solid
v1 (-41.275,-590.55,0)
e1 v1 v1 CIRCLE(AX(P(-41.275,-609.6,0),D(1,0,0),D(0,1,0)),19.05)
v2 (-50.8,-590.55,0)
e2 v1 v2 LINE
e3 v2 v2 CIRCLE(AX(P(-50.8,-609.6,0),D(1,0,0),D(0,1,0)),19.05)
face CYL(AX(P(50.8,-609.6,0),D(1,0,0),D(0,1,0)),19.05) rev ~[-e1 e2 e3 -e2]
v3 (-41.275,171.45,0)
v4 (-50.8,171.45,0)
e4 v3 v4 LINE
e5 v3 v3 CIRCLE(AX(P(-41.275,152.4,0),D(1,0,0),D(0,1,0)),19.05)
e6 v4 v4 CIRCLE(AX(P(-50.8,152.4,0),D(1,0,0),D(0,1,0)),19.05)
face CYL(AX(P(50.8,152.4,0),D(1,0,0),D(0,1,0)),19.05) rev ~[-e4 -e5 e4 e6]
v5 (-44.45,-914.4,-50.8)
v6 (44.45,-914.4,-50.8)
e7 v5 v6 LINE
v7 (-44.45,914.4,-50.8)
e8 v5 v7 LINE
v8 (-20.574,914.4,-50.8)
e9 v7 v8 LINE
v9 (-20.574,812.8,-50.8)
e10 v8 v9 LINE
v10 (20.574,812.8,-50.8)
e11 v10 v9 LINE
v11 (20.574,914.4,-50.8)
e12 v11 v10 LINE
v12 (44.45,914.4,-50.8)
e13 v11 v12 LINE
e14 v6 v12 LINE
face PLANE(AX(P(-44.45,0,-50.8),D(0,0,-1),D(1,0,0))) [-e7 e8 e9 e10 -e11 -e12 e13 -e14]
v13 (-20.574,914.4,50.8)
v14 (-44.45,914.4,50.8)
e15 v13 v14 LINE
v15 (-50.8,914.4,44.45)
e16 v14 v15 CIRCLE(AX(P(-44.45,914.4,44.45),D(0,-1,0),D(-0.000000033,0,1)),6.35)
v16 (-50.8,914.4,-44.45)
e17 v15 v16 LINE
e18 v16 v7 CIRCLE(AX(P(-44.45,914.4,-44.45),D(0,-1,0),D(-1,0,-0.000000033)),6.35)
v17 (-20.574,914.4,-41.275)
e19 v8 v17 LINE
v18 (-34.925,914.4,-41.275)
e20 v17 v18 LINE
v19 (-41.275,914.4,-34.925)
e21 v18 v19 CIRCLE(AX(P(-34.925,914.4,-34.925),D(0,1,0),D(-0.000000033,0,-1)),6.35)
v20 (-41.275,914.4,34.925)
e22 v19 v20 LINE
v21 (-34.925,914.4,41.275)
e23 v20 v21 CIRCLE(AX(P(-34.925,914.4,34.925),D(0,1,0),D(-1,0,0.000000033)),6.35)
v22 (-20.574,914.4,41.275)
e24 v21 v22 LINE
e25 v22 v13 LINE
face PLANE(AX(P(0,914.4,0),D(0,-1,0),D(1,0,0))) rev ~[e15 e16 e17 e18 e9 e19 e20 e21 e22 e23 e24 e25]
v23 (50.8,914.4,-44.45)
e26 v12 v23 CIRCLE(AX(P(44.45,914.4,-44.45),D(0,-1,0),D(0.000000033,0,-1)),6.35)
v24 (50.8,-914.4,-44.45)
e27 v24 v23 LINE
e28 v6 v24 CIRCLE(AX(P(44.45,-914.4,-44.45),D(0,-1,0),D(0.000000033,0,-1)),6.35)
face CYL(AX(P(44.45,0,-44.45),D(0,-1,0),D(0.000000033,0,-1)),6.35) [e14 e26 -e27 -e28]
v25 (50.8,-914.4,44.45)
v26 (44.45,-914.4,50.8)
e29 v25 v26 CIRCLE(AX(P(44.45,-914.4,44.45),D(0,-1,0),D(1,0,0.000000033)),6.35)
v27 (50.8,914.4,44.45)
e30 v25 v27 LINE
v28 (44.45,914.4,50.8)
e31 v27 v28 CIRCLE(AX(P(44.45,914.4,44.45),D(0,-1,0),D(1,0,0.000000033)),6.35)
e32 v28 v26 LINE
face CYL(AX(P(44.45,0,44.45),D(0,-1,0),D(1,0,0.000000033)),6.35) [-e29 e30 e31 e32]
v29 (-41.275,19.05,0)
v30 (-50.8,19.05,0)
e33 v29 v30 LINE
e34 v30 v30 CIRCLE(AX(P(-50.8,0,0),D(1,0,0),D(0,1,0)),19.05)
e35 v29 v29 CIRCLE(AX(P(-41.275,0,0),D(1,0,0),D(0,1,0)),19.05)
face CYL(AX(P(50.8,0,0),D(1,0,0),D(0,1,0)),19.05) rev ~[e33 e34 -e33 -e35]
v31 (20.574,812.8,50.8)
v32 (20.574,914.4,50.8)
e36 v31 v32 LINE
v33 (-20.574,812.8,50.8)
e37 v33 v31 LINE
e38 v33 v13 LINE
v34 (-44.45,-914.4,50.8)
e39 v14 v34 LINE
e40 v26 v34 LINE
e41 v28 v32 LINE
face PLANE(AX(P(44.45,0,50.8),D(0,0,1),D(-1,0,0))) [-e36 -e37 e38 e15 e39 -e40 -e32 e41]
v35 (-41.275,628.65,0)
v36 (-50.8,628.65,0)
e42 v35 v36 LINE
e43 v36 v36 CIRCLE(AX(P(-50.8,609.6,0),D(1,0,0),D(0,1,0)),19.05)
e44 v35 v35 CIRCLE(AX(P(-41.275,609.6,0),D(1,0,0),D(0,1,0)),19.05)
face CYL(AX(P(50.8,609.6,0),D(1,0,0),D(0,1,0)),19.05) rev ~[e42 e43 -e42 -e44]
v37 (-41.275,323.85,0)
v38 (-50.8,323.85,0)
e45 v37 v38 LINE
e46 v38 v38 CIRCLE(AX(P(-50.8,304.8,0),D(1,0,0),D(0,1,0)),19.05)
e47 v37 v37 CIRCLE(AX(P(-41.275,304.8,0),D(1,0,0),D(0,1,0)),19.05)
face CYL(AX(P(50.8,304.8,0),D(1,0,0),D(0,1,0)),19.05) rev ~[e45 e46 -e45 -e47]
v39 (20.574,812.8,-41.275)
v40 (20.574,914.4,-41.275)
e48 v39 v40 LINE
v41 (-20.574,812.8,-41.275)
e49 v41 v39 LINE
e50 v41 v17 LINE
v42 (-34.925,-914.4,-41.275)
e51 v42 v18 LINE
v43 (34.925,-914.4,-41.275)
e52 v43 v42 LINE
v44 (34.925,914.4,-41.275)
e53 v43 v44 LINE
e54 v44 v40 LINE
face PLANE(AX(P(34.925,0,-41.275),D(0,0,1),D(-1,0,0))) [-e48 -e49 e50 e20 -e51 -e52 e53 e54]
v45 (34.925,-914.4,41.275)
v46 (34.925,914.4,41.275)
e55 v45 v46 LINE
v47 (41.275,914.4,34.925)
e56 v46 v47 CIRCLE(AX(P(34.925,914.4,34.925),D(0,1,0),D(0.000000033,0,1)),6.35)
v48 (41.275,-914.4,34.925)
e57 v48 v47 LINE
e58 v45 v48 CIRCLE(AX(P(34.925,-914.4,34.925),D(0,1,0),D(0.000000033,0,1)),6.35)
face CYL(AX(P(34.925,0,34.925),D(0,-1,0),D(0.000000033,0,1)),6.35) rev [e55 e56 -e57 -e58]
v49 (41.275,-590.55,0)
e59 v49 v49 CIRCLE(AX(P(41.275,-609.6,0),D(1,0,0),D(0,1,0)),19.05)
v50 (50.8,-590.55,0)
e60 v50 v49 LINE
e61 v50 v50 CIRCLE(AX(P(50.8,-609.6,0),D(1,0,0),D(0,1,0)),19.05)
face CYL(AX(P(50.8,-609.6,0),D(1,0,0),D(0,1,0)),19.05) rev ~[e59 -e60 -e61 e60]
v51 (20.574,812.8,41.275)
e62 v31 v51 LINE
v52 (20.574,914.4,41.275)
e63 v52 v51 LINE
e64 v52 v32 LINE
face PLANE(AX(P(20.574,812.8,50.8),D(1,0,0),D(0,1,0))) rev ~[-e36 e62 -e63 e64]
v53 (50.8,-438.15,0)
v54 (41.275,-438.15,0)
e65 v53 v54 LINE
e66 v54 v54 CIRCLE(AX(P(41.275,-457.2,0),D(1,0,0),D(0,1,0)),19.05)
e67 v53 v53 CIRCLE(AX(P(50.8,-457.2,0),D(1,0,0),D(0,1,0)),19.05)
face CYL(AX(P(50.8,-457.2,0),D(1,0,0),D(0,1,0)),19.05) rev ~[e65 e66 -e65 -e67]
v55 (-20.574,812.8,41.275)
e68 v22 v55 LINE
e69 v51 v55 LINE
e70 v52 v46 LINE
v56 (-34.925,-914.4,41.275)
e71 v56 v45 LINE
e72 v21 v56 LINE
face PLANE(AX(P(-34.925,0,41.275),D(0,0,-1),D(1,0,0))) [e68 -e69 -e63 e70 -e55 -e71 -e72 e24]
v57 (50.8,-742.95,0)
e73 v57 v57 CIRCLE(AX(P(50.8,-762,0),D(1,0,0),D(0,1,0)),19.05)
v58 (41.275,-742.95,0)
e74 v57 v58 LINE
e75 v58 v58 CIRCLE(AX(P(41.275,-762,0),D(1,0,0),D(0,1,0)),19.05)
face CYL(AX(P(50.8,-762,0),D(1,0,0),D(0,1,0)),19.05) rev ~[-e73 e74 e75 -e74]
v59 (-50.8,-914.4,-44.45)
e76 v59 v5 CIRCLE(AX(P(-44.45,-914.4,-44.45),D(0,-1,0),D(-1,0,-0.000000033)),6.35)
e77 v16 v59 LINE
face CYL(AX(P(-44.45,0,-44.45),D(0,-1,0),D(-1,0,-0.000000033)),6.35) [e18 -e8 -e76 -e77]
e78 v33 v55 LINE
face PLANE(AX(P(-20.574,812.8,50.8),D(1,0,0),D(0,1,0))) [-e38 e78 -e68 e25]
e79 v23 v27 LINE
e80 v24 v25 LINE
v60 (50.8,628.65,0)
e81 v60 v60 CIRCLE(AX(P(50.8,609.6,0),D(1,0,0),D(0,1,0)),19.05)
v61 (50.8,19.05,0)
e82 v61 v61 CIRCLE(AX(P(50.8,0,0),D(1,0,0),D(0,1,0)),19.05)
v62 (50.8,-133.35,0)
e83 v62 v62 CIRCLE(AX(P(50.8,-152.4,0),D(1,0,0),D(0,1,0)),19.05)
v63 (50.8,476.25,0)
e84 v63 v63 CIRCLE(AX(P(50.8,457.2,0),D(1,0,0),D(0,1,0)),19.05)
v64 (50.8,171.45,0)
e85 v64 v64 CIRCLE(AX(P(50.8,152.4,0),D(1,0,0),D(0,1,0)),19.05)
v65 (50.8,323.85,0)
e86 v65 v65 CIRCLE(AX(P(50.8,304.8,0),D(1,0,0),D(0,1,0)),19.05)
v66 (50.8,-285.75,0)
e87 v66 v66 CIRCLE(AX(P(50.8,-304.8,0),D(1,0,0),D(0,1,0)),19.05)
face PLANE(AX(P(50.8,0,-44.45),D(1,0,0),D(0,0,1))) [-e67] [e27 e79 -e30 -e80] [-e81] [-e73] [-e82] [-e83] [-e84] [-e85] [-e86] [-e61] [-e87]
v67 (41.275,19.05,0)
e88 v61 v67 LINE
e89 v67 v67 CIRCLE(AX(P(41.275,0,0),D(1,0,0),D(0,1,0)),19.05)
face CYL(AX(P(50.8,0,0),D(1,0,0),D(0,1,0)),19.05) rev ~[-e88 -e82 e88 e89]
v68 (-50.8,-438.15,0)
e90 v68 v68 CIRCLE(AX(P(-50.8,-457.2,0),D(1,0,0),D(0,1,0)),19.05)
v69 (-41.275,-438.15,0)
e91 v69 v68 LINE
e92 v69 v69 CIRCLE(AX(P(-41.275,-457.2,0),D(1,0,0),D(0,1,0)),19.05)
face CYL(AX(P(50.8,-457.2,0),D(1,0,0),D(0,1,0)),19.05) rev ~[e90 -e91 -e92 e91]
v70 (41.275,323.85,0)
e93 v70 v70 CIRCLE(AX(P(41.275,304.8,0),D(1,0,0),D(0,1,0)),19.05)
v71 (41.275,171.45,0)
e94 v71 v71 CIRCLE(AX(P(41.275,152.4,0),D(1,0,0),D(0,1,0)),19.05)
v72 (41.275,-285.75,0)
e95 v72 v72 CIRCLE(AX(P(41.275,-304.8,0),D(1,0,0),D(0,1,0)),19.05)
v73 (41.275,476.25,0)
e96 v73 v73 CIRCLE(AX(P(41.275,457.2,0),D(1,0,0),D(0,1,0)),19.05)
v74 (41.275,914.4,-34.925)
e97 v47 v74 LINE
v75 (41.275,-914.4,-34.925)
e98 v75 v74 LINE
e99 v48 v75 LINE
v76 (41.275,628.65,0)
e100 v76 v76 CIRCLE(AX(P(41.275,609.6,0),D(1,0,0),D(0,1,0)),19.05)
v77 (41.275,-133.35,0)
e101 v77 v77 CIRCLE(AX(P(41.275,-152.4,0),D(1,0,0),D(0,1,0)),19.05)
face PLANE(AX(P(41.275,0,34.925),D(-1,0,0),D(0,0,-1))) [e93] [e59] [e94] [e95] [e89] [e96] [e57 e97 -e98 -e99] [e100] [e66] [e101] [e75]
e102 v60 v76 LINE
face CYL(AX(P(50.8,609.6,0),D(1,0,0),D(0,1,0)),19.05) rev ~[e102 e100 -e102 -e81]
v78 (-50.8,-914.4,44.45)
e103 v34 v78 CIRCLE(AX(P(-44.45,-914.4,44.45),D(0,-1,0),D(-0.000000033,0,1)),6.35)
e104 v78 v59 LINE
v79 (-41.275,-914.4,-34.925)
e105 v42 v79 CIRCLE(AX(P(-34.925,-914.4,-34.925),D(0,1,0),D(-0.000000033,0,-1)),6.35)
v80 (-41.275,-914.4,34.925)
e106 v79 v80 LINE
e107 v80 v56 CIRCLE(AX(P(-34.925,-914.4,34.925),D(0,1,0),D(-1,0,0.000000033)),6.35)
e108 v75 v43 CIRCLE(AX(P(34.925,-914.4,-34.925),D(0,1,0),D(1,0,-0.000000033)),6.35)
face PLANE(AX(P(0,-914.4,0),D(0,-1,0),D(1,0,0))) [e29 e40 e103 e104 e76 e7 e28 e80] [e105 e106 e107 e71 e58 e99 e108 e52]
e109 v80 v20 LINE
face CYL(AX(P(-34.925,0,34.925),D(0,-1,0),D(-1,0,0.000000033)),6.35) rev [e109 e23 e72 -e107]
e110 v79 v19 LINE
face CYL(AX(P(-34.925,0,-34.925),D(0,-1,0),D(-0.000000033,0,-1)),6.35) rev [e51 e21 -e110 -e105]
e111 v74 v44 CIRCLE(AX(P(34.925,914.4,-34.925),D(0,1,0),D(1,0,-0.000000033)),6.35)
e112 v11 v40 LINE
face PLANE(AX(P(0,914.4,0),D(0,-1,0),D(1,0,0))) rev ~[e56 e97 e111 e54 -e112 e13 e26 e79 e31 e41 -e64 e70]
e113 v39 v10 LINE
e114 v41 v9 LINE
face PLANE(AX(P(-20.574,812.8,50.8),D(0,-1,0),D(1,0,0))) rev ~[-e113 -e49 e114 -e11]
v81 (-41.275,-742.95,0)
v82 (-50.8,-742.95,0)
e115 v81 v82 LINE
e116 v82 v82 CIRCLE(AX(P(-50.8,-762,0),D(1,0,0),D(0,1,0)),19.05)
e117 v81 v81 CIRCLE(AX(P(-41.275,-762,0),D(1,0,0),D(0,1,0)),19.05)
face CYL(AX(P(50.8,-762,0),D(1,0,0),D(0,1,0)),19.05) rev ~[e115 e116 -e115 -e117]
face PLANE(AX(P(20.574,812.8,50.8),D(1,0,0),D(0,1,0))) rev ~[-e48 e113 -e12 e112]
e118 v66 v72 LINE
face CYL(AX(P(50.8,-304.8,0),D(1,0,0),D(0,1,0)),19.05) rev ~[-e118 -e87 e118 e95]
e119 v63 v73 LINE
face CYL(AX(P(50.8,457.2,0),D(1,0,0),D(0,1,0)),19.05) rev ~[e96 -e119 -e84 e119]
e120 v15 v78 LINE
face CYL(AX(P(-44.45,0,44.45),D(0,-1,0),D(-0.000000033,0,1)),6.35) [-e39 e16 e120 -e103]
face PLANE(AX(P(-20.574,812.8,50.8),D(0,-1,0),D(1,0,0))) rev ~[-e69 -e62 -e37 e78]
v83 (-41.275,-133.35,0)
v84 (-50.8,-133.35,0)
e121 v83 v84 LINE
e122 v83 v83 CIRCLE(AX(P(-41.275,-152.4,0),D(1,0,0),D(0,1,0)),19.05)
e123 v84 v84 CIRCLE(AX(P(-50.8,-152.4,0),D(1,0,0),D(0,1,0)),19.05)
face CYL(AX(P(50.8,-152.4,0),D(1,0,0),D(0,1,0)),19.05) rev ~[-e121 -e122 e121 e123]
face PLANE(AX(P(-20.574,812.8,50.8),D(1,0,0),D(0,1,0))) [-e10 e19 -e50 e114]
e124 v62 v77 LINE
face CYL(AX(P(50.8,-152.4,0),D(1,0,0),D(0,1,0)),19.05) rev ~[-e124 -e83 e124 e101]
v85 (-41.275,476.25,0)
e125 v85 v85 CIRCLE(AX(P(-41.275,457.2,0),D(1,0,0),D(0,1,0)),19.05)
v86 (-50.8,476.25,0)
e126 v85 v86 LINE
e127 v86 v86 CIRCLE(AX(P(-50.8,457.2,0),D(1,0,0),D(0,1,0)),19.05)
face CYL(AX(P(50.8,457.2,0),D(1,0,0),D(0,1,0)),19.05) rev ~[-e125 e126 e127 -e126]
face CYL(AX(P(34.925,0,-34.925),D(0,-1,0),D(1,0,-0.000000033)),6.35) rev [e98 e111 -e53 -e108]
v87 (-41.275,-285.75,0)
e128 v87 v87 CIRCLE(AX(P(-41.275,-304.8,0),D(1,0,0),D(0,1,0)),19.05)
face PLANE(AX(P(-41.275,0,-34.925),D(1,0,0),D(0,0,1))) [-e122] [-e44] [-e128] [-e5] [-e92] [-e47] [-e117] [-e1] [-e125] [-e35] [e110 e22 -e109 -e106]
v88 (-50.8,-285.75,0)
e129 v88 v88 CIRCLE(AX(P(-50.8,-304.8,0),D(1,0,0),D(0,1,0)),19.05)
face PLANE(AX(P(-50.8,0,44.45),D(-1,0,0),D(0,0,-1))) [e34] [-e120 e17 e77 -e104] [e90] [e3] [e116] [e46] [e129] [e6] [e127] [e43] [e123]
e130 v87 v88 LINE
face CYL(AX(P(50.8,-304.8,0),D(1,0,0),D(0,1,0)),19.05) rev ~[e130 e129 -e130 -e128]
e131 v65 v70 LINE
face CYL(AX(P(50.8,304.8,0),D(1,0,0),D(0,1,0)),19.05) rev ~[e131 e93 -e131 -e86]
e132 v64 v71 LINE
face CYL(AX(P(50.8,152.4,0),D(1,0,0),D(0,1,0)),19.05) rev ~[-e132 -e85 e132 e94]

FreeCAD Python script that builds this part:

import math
import FreeCAD as App
import Part
import Sketcher
from FreeCAD import Vector
Q = App.Units.Quantity

doc = App.newDocument("Part")
body = doc.addObject("PartDesign::Body", "Body")

sketch1 = doc.addObject("Sketcher::SketchObject", "Sketch")
body.addObject(sketch1)
sketch1.AttachmentSupport = (doc.XZ_Plane, [""])
sketch1.MapMode = "FlatFace"
sketch1.addGeometry([
    Part.ArcOfCircle(Part.Circle(Vector(44.45, 44.45, 0), Vector(0, 0, 1), 6.35), math.radians(0.000002), math.radians(89.999998)),
    Part.LineSegment(Vector(44.45, 50.8, 0), Vector(-44.45, 50.8, 0)),
    Part.ArcOfCircle(Part.Circle(Vector(-44.45, 44.45, 0), Vector(0, 0, 1), 6.35), math.radians(90.000002), math.radians(179.999998)),
    Part.LineSegment(Vector(-50.8, 44.45, 0), Vector(-50.8, -44.45, 0)),
    Part.ArcOfCircle(Part.Circle(Vector(-44.45, -44.45, 0), Vector(0, 0, 1), 6.35), math.radians(-179.999998), math.radians(-90.000002)),
    Part.LineSegment(Vector(-44.45, -50.8, 0), Vector(44.45, -50.8, 0)),
    Part.ArcOfCircle(Part.Circle(Vector(44.45, -44.45, 0), Vector(0, 0, 1), 6.35), math.radians(-89.999998), math.radians(-0.000002)),
    Part.LineSegment(Vector(50.8, -44.45, 0), Vector(50.8, 44.45, 0)),
    Part.ArcOfCircle(Part.Circle(Vector(-34.925, 34.925, 0), Vector(0, 0, 1), 6.35), math.radians(90.000002), math.radians(179.999998)),
    Part.LineSegment(Vector(-34.925, 41.275, 0), Vector(34.925, 41.275, 0)),
    Part.ArcOfCircle(Part.Circle(Vector(34.925, 34.925, 0), Vector(0, 0, 1), 6.35), math.radians(0.000002), math.radians(89.999998)),
    Part.LineSegment(Vector(41.275, 34.925, 0), Vector(41.275, -34.925, 0)),
    Part.ArcOfCircle(Part.Circle(Vector(34.925, -34.925, 0), Vector(0, 0, 1), 6.35), math.radians(-89.999998), math.radians(-0.000002)),
    Part.LineSegment(Vector(34.925, -41.275, 0), Vector(-34.925, -41.275, 0)),
    Part.ArcOfCircle(Part.Circle(Vector(-34.925, -34.925, 0), Vector(0, 0, 1), 6.35), math.radians(-179.999998), math.radians(-90.000002)),
    Part.LineSegment(Vector(-41.275, -34.925, 0), Vector(-41.275, 34.925, 0)),
], False)
sketch1.addConstraint([
    Sketcher.Constraint("Tangent", 0, 2, 1, 1),
    Sketcher.Constraint("Tangent", 1, 2, 2, 1),
    Sketcher.Constraint("Tangent", 2, 2, 3, 1),
    Sketcher.Constraint("Tangent", 3, 2, 4, 1),
    Sketcher.Constraint("Tangent", 4, 2, 5, 1),
    Sketcher.Constraint("Tangent", 5, 2, 6, 1),
    Sketcher.Constraint("Tangent", 6, 2, 7, 1),
    Sketcher.Constraint("Tangent", 7, 2, 0, 1),
    Sketcher.Constraint("Tangent", 8, 1, 9, 1),
    Sketcher.Constraint("Tangent", 9, 2, 10, 2),
    Sketcher.Constraint("Tangent", 10, 1, 11, 1),
    Sketcher.Constraint("Tangent", 11, 2, 12, 2),
    Sketcher.Constraint("Tangent", 12, 1, 13, 1),
    Sketcher.Constraint("Tangent", 13, 2, 14, 2),
    Sketcher.Constraint("Tangent", 14, 1, 15, 1),
    Sketcher.Constraint("Tangent", 15, 2, 8, 2),
    Sketcher.Constraint("Horizontal", 1),
    Sketcher.Constraint("Vertical", 3),
    Sketcher.Constraint("Horizontal", 5),
    Sketcher.Constraint("Vertical", 7),
    Sketcher.Constraint("Horizontal", 9),
    Sketcher.Constraint("Vertical", 11),
    Sketcher.Constraint("Horizontal", 13),
    Sketcher.Constraint("Vertical", 15),
    Sketcher.Constraint("Equal", 0, 2),
    Sketcher.Constraint("Equal", 2, 4),
    Sketcher.Constraint("Equal", 4, 6),
    Sketcher.Constraint("Equal", 6, 8),
    Sketcher.Constraint("Equal", 8, 10),
    Sketcher.Constraint("Equal", 10, 12),
    Sketcher.Constraint("Equal", 12, 14),
    Sketcher.Constraint("Symmetric", 0, 3, 4, 3, -1, 1),
    Sketcher.Constraint("Symmetric", 8, 3, 12, 3, -1, 1),
    Sketcher.Constraint("Equal", 5, 3),
    Sketcher.Constraint("Equal", 13, 11),
    Sketcher.Constraint("Radius", 0, Q("0.25 in")),
    Sketcher.Constraint("DistanceX", 1, 2, 1, 1, Q("3.5 in")),
    Sketcher.Constraint("DistanceX", 9, 1, 9, 2, Q("2.75 in")),
])
pad1 = doc.addObject("PartDesign::Pad", "Pad")
body.addObject(pad1)
pad1.Profile = sketch1
pad1.Length = Q("72 in")
pad1.Midplane = True

sketch2 = doc.addObject("Sketcher::SketchObject", "Sketch001")
body.addObject(sketch2)
sketch2.AttachmentSupport = (doc.YZ_Plane, [""])
sketch2.MapMode = "FlatFace"
sketch2.AttachmentOffset = App.Placement(Vector(0, 0, 2 * 25.4), App.Rotation())
sketch2.addGeometry([
    Part.Circle(Vector(304.8, 0, 0), Vector(0, 0, 1), 19.05),
    Part.Circle(Vector(-762, 0, 0), Vector(0, 0, 1), 19.05),
    Part.Circle(Vector(-609.6, 0, 0), Vector(0, 0, 1), 19.05),
    Part.Circle(Vector(-457.2, 0, 0), Vector(0, 0, 1), 19.05),
    Part.Circle(Vector(-304.8, 0, 0), Vector(0, 0, 1), 19.05),
    Part.Circle(Vector(-152.4, 0, 0), Vector(0, 0, 1), 19.05),
    Part.Circle(Vector(0, 0, 0), Vector(0, 0, 1), 19.05),
    Part.Circle(Vector(152.4, 0, 0), Vector(0, 0, 1), 19.05),
    Part.Circle(Vector(457.2, 0, 0), Vector(0, 0, 1), 19.05),
    Part.Circle(Vector(609.6, 0, 0), Vector(0, 0, 1), 19.05),
], False)
sketch2.addConstraint([
    Sketcher.Constraint("Coincident", 6, 3, -1, 1),
    Sketcher.Constraint("Equal", 0, 1),
    Sketcher.Constraint("Equal", 1, 2),
    Sketcher.Constraint("Equal", 2, 3),
    Sketcher.Constraint("Equal", 3, 4),
    Sketcher.Constraint("Equal", 4, 5),
    Sketcher.Constraint("Equal", 5, 6),
    Sketcher.Constraint("Equal", 6, 7),
    Sketcher.Constraint("Equal", 7, 8),
    Sketcher.Constraint("Equal", 8, 9),
    Sketcher.Constraint("Symmetric", 0, 3, 4, 3, -1, 1),
    Sketcher.Constraint("Symmetric", 5, 3, 7, 3, -1, 1),
    Sketcher.Constraint("Symmetric", 3, 3, 8, 3, -1, 1),
    Sketcher.Constraint("Symmetric", 2, 3, 9, 3, -1, 1),
    Sketcher.Constraint("PointOnObject", 0, 3, -1),
    Sketcher.Constraint("PointOnObject", 1, 3, -1),
    Sketcher.Constraint("PointOnObject", 2, 3, -1),
    Sketcher.Constraint("PointOnObject", 3, 3, -1),
    Sketcher.Constraint("PointOnObject", 5, 3, -1),
    Sketcher.Constraint("Diameter", 0, Q("1.5 in")),
    Sketcher.Constraint("DistanceX", -1, 1, 0, 3, Q("12 in")),
    Sketcher.Constraint("DistanceX", 1, 3, -1, 1, Q("30 in")),
    Sketcher.Constraint("DistanceX", 2, 3, -1, 1, Q("24 in")),
    Sketcher.Constraint("DistanceX", 3, 3, -1, 1, Q("18 in")),
    Sketcher.Constraint("DistanceX", 5, 3, -1, 1, Q("6 in")),
])
pocket1 = doc.addObject("PartDesign::Pocket", "Pocket")
body.addObject(pocket1)
pocket1.Profile = sketch2
pocket1.Length = Q("5 in")

sketch3 = doc.addObject("Sketcher::SketchObject", "Sketch002")
body.addObject(sketch3)
sketch3.AttachmentSupport = (doc.XY_Plane, [""])
sketch3.MapMode = "FlatFace"
sketch3.AttachmentOffset = App.Placement(Vector(0, 0, 2 * 25.4), App.Rotation())
sketch3.addGeometry([
    Part.LineSegment(Vector(-20.574, 1016, 0), Vector(-20.574, 812.8, 0)),
    Part.LineSegment(Vector(-20.574, 812.8, 0), Vector(20.574, 812.8, 0)),
    Part.LineSegment(Vector(20.574, 812.8, 0), Vector(20.574, 1016, 0)),
    Part.LineSegment(Vector(20.574, 1016, 0), Vector(-20.574, 1016, 0)),
], False)
sketch3.addConstraint([
    Sketcher.Constraint("Coincident", 0, 2, 1, 1),
    Sketcher.Constraint("Coincident", 1, 2, 2, 1),
    Sketcher.Constraint("Coincident", 2, 2, 3, 1),
    Sketcher.Constraint("Coincident", 3, 2, 0, 1),
    Sketcher.Constraint("Vertical", 0),
    Sketcher.Constraint("Horizontal", 1),
    Sketcher.Constraint("Vertical", 2),
    Sketcher.Constraint("Horizontal", 3),
    Sketcher.Constraint("DistanceY", 0, 2, 0, 1, Q("8 in")),
    Sketcher.Constraint("DistanceY", -1, 1, 0, 2, Q("32 in")),
    Sketcher.Constraint("DistanceX", 1, 1, 1, 2, Q("1.62 in")),
    Sketcher.Constraint("DistanceX", 0, 2, -1, 1, Q("0.81 in")),
])
pocket2 = doc.addObject("PartDesign::Pocket", "Pocket001")
body.addObject(pocket2)
pocket2.Profile = sketch3
pocket2.Length = Q("5 in")

doc.recompute()
